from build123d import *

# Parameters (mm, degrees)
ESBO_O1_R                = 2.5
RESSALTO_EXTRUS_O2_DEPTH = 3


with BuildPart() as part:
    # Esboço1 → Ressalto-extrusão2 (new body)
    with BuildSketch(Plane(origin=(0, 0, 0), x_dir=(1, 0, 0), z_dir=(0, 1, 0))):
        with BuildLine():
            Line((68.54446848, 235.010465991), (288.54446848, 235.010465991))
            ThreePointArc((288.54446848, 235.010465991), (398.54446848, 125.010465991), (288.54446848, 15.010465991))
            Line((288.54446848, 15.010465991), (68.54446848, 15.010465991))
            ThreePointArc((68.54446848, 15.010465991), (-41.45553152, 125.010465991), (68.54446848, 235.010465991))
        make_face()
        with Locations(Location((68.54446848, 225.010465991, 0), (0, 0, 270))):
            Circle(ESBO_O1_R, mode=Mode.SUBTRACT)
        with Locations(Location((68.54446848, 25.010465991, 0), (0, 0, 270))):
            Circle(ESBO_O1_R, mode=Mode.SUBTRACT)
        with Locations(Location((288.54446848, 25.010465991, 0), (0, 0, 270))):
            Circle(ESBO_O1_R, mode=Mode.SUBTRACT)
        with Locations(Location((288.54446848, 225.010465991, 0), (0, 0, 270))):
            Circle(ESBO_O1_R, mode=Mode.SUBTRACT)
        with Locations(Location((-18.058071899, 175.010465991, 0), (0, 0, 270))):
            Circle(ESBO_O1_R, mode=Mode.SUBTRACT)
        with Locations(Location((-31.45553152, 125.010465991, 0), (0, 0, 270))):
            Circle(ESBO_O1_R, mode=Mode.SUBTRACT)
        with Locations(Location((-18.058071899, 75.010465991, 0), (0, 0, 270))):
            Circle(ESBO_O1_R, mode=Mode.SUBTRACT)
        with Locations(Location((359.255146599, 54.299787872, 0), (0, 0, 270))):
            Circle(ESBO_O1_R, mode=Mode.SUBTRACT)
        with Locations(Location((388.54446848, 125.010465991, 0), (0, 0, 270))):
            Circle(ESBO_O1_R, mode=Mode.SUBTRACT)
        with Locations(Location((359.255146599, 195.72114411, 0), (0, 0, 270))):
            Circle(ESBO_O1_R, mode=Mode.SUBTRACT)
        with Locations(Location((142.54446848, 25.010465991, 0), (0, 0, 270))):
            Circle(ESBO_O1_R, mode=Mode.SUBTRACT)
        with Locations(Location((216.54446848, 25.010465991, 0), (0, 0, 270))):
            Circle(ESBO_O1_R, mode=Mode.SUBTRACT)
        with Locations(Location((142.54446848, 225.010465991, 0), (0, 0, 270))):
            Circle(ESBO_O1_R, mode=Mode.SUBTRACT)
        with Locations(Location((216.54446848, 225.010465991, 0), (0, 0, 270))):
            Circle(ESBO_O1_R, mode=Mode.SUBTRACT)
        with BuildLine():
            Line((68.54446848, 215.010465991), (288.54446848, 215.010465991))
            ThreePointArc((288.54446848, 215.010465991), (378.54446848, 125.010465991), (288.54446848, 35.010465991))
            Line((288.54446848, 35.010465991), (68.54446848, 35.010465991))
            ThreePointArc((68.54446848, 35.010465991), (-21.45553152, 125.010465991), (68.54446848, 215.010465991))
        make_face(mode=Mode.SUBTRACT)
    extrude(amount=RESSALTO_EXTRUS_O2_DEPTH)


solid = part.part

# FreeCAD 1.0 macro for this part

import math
import FreeCAD as App
import Part
import Sketcher
from FreeCAD import Vector

doc = App.newDocument("Part")
body = doc.addObject("PartDesign::Body", "Body")

# Sketch on XZ plane
sketch1 = body.newObject("Sketcher::SketchObject", "Sketch")
sketch1.AttachmentSupport = (doc.getObject("XZ_Plane"), [""])
sketch1.MapMode = "FlatFace"
sketch1.addGeometry([
    Part.LineSegment(Vector(288.5, -235, 0), Vector(68.5, -235, 0)),  # 0
    Part.ArcOfCircle(Part.Circle(Vector(68.5, -125, 0), Vector(0, 0, 1), 110), math.radians(90), math.radians(270)),  # 1
    Part.LineSegment(Vector(68.5, -15, 0), Vector(288.5, -15, 0)),  # 2
    Part.ArcOfCircle(Part.Circle(Vector(288.5, -125, 0), Vector(0, 0, 1), 110), math.radians(-90), math.radians(90)),  # 3
    Part.Circle(Vector(288.5, -25, 0), Vector(0, 0, 1), 2.5),  # 4
    Part.Circle(Vector(359.3, -54.3, 0), Vector(0, 0, 1), 2.5),  # 5
    Part.Circle(Vector(216.5, -25, 0), Vector(0, 0, 1), 2.5),  # 6
    Part.LineSegment(Vector(68.5, -215, 0), Vector(288.5, -215, 0)),  # 7
    Part.ArcOfCircle(Part.Circle(Vector(288.5, -125, 0), Vector(0, 0, 1), 90), math.radians(-90), math.radians(90)),  # 8
    Part.LineSegment(Vector(288.5, -35, 0), Vector(68.5, -35, 0)),  # 9
    Part.ArcOfCircle(Part.Circle(Vector(68.5, -125, 0), Vector(0, 0, 1), 90), math.radians(90), math.radians(270)),  # 10
    Part.Circle(Vector(142.5, -25, 0), Vector(0, 0, 1), 2.5),  # 11
    Part.Circle(Vector(68.5, -25, 0), Vector(0, 0, 1), 2.5),  # 12
    Part.Circle(Vector(-18.1, -75, 0), Vector(0, 0, 1), 2.5),  # 13
    Part.Circle(Vector(388.5, -125, 0), Vector(0, 0, 1), 2.5),  # 14
    Part.Circle(Vector(359.3, -195.7, 0), Vector(0, 0, 1), 2.5),  # 15
    Part.Circle(Vector(288.5, -225, 0), Vector(0, 0, 1), 2.5),  # 16
    Part.Circle(Vector(216.5, -225, 0), Vector(0, 0, 1), 2.5),  # 17
    Part.Circle(Vector(-31.5, -125, 0), Vector(0, 0, 1), 2.5),  # 18
    Part.Circle(Vector(-18.1, -175, 0), Vector(0, 0, 1), 2.5),  # 19
    Part.Circle(Vector(142.5, -225, 0), Vector(0, 0, 1), 2.5),  # 20
    Part.Circle(Vector(68.5, -225, 0), Vector(0, 0, 1), 2.5),  # 21
], False)
sketch1.addConstraint([
    Sketcher.Constraint("Tangent", 0, 2, 1, 2),
    Sketcher.Constraint("Tangent", 1, 1, 2, 1),
    Sketcher.Constraint("Tangent", 2, 2, 3, 2),
    Sketcher.Constraint("Tangent", 3, 1, 0, 1),
    Sketcher.Constraint("Tangent", 7, 2, 8, 1),
    Sketcher.Constraint("Tangent", 8, 2, 9, 1),
    Sketcher.Constraint("Tangent", 9, 2, 10, 1),
    Sketcher.Constraint("Tangent", 10, 2, 7, 1),
    Sketcher.Constraint("Horizontal", 0),
    Sketcher.Constraint("Horizontal", 2),
    Sketcher.Constraint("Horizontal", 7),
    Sketcher.Constraint("Horizontal", 9),
    Sketcher.Constraint("Coincident", 8, 3, 3, 3),
    Sketcher.Constraint("Equal", 4, 5),
    Sketcher.Constraint("Equal", 5, 6),
    Sketcher.Constraint("Equal", 6, 11),
    Sketcher.Constraint("Equal", 11, 12),
    Sketcher.Constraint("Equal", 12, 13),
    Sketcher.Constraint("Equal", 13, 14),
    Sketcher.Constraint("Equal", 14, 15),
    Sketcher.Constraint("Equal", 15, 16),
    Sketcher.Constraint("Equal", 16, 17),
    Sketcher.Constraint("Equal", 17, 18),
    Sketcher.Constraint("Equal", 18, 19),
    Sketcher.Constraint("Equal", 19, 20),
    Sketcher.Constraint("Equal", 20, 21),
    Sketcher.Constraint("Horizontal", 4, 3, 6, 3),
    Sketcher.Constraint("Horizontal", 6, 3, 11, 3),
    Sketcher.Constraint("Horizontal", 11, 3, 12, 3),
    Sketcher.Constraint("Horizontal", 10, 3, 14, 3),
    Sketcher.Constraint("Horizontal", 16, 3, 17, 3),
    Sketcher.Constraint("Horizontal", 14, 3, 18, 3),
    Sketcher.Constraint("Horizontal", 17, 3, 20, 3),
    Sketcher.Constraint("Horizontal", 20, 3, 21, 3),
    Sketcher.Constraint("Vertical", 3, 3, 4, 3),
    Sketcher.Constraint("Vertical", 10, 3, 12, 3),
    Sketcher.Constraint("Vertical", 5, 3, 15, 3),
    Sketcher.Constraint("Vertical", 8, 3, 16, 3),
    Sketcher.Constraint("Vertical", 6, 3, 17, 3),
    Sketcher.Constraint("Vertical", 13, 3, 19, 3),
    Sketcher.Constraint("Vertical", 11, 3, 20, 3),
    Sketcher.Constraint("Vertical", 12, 3, 21, 3),
    Sketcher.Constraint("Vertical", 21, 3, 0, 2),
    Sketcher.Constraint("Diameter", 4, 5.0),
    Sketcher.Constraint("Radius", 1, 110.0),
    Sketcher.Constraint("Radius", 8, 90.0),
    Sketcher.Constraint("DistanceX", 0, 2, 0, 1, 220.0),
    Sketcher.Constraint("DistanceY", 3, 3, 4, 3, 100.0),
    Sketcher.Constraint("DistanceX", 6, 3, 4, 3, 72.0),
    Sketcher.Constraint("DistanceX", 11, 3, 6, 3, 74.0),
    Sketcher.Constraint("DistanceY", 1, 3, 13, 3, 50.0),
    Sketcher.Constraint("DistanceX", 3, 3, 14, 3, 100.0),
    Sketcher.Constraint("DistanceY", 16, 3, 3, 3, 100.0),
    Sketcher.Constraint("DistanceX", 18, 3, 1, 3, 100.0),
    Sketcher.Constraint("DistanceY", 19, 3, 18, 3, 50.0),
    Sketcher.Constraint("DistanceX", -1, 1, 1, 3, 68.544468),
    Sketcher.Constraint("DistanceX", 13, 3, -1, 1, 18.058072),
    Sketcher.Constraint("DistanceX", 4, 3, 5, 3, 70.710678),
    Sketcher.Constraint("DistanceY", 5, 3, 4, 3, 29.289322),
    Sketcher.Constraint("DistanceY", 15, 3, 14, 3, 70.710678),
    Sketcher.Constraint("DistanceY", 1, 3, -1, 1, 125.010466),
])
pad1 = body.newObject("PartDesign::Pad", "Pad")
pad1.Profile = sketch1
pad1.Length = 3
pad1.Reversed = True

doc.recompute()
